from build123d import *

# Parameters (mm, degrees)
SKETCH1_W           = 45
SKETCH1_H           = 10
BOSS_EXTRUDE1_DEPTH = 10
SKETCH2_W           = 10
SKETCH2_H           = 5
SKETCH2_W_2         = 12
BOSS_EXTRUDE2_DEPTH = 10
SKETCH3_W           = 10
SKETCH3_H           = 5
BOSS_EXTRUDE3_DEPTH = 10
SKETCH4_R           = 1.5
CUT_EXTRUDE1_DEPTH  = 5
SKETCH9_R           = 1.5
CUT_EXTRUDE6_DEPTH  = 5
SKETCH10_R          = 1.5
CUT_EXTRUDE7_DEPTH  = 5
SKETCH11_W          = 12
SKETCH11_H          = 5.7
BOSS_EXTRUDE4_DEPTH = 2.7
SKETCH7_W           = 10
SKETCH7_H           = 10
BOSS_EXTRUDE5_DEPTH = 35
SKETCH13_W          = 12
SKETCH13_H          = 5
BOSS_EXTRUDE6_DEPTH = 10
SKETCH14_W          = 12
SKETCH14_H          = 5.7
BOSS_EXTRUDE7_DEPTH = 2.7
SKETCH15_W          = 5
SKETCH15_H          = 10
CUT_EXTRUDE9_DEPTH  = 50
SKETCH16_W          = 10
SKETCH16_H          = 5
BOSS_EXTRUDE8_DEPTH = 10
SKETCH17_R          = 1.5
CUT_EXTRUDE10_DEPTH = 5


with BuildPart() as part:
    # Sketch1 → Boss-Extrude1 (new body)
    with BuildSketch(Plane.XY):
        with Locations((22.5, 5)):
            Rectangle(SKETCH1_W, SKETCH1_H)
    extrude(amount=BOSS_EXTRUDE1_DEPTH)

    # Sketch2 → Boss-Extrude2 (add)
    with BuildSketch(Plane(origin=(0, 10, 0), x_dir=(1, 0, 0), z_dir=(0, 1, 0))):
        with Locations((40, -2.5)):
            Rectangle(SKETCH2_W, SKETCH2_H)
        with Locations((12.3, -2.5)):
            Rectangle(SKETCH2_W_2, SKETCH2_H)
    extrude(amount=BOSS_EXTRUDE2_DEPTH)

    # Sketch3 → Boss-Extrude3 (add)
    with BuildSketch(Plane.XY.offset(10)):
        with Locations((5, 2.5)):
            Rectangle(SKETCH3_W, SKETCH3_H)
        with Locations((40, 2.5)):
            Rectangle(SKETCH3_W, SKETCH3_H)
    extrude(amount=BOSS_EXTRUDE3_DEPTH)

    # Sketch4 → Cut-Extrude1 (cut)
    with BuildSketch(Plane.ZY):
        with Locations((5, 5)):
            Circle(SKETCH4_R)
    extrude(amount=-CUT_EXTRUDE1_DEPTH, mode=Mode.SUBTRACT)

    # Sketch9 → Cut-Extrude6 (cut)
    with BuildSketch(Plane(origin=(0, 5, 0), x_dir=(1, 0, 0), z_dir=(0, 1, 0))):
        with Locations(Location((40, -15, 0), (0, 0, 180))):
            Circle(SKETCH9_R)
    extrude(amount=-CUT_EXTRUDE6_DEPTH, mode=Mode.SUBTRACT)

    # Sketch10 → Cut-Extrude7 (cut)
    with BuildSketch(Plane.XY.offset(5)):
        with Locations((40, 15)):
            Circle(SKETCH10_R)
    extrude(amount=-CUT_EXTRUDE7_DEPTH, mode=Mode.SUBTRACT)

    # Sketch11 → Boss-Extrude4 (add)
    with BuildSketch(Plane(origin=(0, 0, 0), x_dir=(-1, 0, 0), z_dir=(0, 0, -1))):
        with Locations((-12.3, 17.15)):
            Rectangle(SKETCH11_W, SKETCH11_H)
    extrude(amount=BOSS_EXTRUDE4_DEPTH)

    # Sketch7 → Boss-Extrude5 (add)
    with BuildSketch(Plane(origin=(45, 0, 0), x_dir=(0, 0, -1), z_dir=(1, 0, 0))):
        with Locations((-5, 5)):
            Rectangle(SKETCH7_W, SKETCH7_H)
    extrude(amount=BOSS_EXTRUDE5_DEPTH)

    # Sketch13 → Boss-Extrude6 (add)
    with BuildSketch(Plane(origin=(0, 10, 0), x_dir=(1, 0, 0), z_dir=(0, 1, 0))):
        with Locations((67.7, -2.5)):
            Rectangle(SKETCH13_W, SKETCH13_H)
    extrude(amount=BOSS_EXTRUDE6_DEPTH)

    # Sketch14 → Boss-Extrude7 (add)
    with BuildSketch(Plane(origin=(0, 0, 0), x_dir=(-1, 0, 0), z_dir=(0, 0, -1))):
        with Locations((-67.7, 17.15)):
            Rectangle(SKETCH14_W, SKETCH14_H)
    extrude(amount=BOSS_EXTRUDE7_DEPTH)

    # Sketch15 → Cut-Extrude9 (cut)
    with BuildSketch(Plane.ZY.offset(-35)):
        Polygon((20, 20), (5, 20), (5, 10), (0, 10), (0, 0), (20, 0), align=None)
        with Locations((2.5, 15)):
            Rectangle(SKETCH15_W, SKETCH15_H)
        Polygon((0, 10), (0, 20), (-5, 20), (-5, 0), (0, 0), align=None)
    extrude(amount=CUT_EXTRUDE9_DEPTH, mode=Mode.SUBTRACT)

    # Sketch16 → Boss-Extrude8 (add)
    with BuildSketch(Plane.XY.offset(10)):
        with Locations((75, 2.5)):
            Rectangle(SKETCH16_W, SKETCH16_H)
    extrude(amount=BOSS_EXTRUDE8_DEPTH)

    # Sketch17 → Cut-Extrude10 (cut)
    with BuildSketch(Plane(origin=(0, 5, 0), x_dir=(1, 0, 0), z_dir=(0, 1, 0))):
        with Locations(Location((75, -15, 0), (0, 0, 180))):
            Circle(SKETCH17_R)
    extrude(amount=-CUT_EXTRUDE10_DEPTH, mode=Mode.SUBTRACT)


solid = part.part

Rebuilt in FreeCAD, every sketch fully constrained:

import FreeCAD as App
import Part
import Sketcher
from FreeCAD import Vector
Q = App.Units.Quantity

doc = App.newDocument("Part")
body = doc.addObject("PartDesign::Body", "Body")

# Sketch on XY plane
sketch1 = body.newObject("Sketcher::SketchObject", "Sketch")
sketch1.AttachmentSupport = (doc.getObject("XY_Plane"), [""])
sketch1.MapMode = "FlatFace"
sketch1.addGeometry(Part.LineSegment(Vector(0, 10, 0), Vector(0, 0, 0)), False)
sketch1.addGeometry(Part.LineSegment(Vector(0, 0, 0), Vector(45, 0, 0)), False)
sketch1.addGeometry(Part.LineSegment(Vector(45, 0, 0), Vector(45, 10, 0)), False)
sketch1.addGeometry(Part.LineSegment(Vector(45, 10, 0), Vector(0, 10, 0)), False)
sketch1.addConstraint(Sketcher.Constraint("Coincident", 0, 2, 1, 1))
sketch1.addConstraint(Sketcher.Constraint("Coincident", 1, 2, 2, 1))
sketch1.addConstraint(Sketcher.Constraint("Coincident", 2, 2, 3, 1))
sketch1.addConstraint(Sketcher.Constraint("Coincident", 3, 2, 0, 1))
sketch1.addConstraint(Sketcher.Constraint("Vertical", 0))
sketch1.addConstraint(Sketcher.Constraint("Horizontal", 1))
sketch1.addConstraint(Sketcher.Constraint("Vertical", 2))
sketch1.addConstraint(Sketcher.Constraint("Horizontal", 3))
sketch1.addConstraint(Sketcher.Constraint("Coincident", 0, 2, -1, 1))
sketch1.addConstraint(Sketcher.Constraint("DistanceX", 1, 1, 1, 2, Q("45 mm")))
sketch1.addConstraint(Sketcher.Constraint("DistanceY", 0, 2, 0, 1, Q("10 mm")))
pad1 = body.newObject("PartDesign::Pad", "Pad")
pad1.Profile = sketch1
pad1.Length = 10

# Sketch on XZ plane
sketch2 = body.newObject("Sketcher::SketchObject", "Sketch001")
sketch2.AttachmentSupport = (doc.getObject("XZ_Plane"), [""])
sketch2.MapMode = "FlatFace"
sketch2.AttachmentOffset = App.Placement(Vector(0, 0, -10), App.Rotation())
sketch2.addGeometry(Part.LineSegment(Vector(35, 0, 0), Vector(35, 5, 0)), False)
sketch2.addGeometry(Part.LineSegment(Vector(35, 5, 0), Vector(45, 5, 0)), False)
sketch2.addGeometry(Part.LineSegment(Vector(45, 5, 0), Vector(45, 0, 0)), False)
sketch2.addGeometry(Part.LineSegment(Vector(45, 0, 0), Vector(35, 0, 0)), False)
sketch2.addGeometry(Part.LineSegment(Vector(6.3, 0, 0), Vector(6.3, 5, 0)), False)
sketch2.addGeometry(Part.LineSegment(Vector(6.3, 5, 0), Vector(18.3, 5, 0)), False)
sketch2.addGeometry(Part.LineSegment(Vector(18.3, 5, 0), Vector(18.3, 0, 0)), False)
sketch2.addGeometry(Part.LineSegment(Vector(18.3, 0, 0), Vector(6.3, 0, 0)), False)
sketch2.addConstraint(Sketcher.Constraint("Coincident", 0, 2, 1, 1))
sketch2.addConstraint(Sketcher.Constraint("Coincident", 1, 2, 2, 1))
sketch2.addConstraint(Sketcher.Constraint("Coincident", 2, 2, 3, 1))
sketch2.addConstraint(Sketcher.Constraint("Coincident", 3, 2, 0, 1))
sketch2.addConstraint(Sketcher.Constraint("Coincident", 4, 2, 5, 1))
sketch2.addConstraint(Sketcher.Constraint("Coincident", 5, 2, 6, 1))
sketch2.addConstraint(Sketcher.Constraint("Coincident", 6, 2, 7, 1))
sketch2.addConstraint(Sketcher.Constraint("Coincident", 7, 2, 4, 1))
sketch2.addConstraint(Sketcher.Constraint("Vertical", 0))
sketch2.addConstraint(Sketcher.Constraint("Horizontal", 1))
sketch2.addConstraint(Sketcher.Constraint("Vertical", 2))
sketch2.addConstraint(Sketcher.Constraint("Horizontal", 3))
sketch2.addConstraint(Sketcher.Constraint("Vertical", 4))
sketch2.addConstraint(Sketcher.Constraint("Horizontal", 5))
sketch2.addConstraint(Sketcher.Constraint("Vertical", 6))
sketch2.addConstraint(Sketcher.Constraint("Horizontal", 7))
sketch2.addConstraint(Sketcher.Constraint("PointOnObject", 2, 2, -1))
sketch2.addConstraint(Sketcher.Constraint("PointOnObject", 6, 2, -1))
sketch2.addConstraint(Sketcher.Constraint("Horizontal", 1, 2, 4, 2))
sketch2.addConstraint(Sketcher.Constraint("DistanceX", 1, 1, 1, 2, Q("10 mm")))
sketch2.addConstraint(Sketcher.Constraint("DistanceX", 5, 1, 5, 2, Q("12 mm")))
sketch2.addConstraint(Sketcher.Constraint("DistanceY", 0, 1, 0, 2, Q("5 mm")))
sketch2.addConstraint(Sketcher.Constraint("DistanceX", -1, 1, 0, 2, Q("35 mm")))
sketch2.addConstraint(Sketcher.Constraint("DistanceX", -1, 1, 4, 2, Q("6.3 mm")))
pad2 = body.newObject("PartDesign::Pad", "Pad001")
pad2.Profile = sketch2
pad2.Length = 10
pad2.Reversed = True

# Sketch on XY plane
sketch3 = body.newObject("Sketcher::SketchObject", "Sketch002")
sketch3.AttachmentSupport = (doc.getObject("XY_Plane"), [""])
sketch3.MapMode = "FlatFace"
sketch3.AttachmentOffset = App.Placement(Vector(0, 0, 10), App.Rotation())
sketch3.addGeometry(Part.LineSegment(Vector(0, 5, 0), Vector(0, 0, 0)), False)
sketch3.addGeometry(Part.LineSegment(Vector(0, 0, 0), Vector(10, 0, 0)), False)
sketch3.addGeometry(Part.LineSegment(Vector(10, 0, 0), Vector(10, 5, 0)), False)
sketch3.addGeometry(Part.LineSegment(Vector(10, 5, 0), Vector(0, 5, 0)), False)
sketch3.addGeometry(Part.LineSegment(Vector(35, 5, 0), Vector(35, 0, 0)), False)
sketch3.addGeometry(Part.LineSegment(Vector(35, 0, 0), Vector(45, 0, 0)), False)
sketch3.addGeometry(Part.LineSegment(Vector(45, 0, 0), Vector(45, 5, 0)), False)
sketch3.addGeometry(Part.LineSegment(Vector(45, 5, 0), Vector(35, 5, 0)), False)
sketch3.addConstraint(Sketcher.Constraint("Coincident", 0, 2, 1, 1))
sketch3.addConstraint(Sketcher.Constraint("Coincident", 1, 2, 2, 1))
sketch3.addConstraint(Sketcher.Constraint("Coincident", 2, 2, 3, 1))
sketch3.addConstraint(Sketcher.Constraint("Coincident", 3, 2, 0, 1))
sketch3.addConstraint(Sketcher.Constraint("Coincident", 4, 2, 5, 1))
sketch3.addConstraint(Sketcher.Constraint("Coincident", 5, 2, 6, 1))
sketch3.addConstraint(Sketcher.Constraint("Coincident", 6, 2, 7, 1))
sketch3.addConstraint(Sketcher.Constraint("Coincident", 7, 2, 4, 1))
sketch3.addConstraint(Sketcher.Constraint("Vertical", 0))
sketch3.addConstraint(Sketcher.Constraint("Horizontal", 1))
sketch3.addConstraint(Sketcher.Constraint("Vertical", 2))
sketch3.addConstraint(Sketcher.Constraint("Horizontal", 3))
sketch3.addConstraint(Sketcher.Constraint("Vertical", 4))
sketch3.addConstraint(Sketcher.Constraint("Horizontal", 5))
sketch3.addConstraint(Sketcher.Constraint("Vertical", 6))
sketch3.addConstraint(Sketcher.Constraint("Horizontal", 7))
sketch3.addConstraint(Sketcher.Constraint("Coincident", 0, 2, -1, 1))
sketch3.addConstraint(Sketcher.Constraint("PointOnObject", 4, 2, -1))
sketch3.addConstraint(Sketcher.Constraint("Horizontal", 3, 2, 6, 2))
sketch3.addConstraint(Sketcher.Constraint("Equal", 3, 5))
sketch3.addConstraint(Sketcher.Constraint("DistanceX", 1, 1, 1, 2, Q("10 mm")))
sketch3.addConstraint(Sketcher.Constraint("DistanceY", 0, 2, 0, 1, Q("5 mm")))
sketch3.addConstraint(Sketcher.Constraint("DistanceX", -1, 1, 4, 2, Q("35 mm")))
pad3 = body.newObject("PartDesign::Pad", "Pad002")
pad3.Profile = sketch3
pad3.Length = 10

# Sketch on YZ plane
sketch4 = body.newObject("Sketcher::SketchObject", "Sketch003")
sketch4.AttachmentSupport = (doc.getObject("YZ_Plane"), [""])
sketch4.MapMode = "FlatFace"
sketch4.addGeometry(Part.Circle(Vector(5, 5, 0), Vector(0, 0, 1), 1.5), False)
sketch4.addConstraint(Sketcher.Constraint("Diameter", 0, Q("3 mm")))
sketch4.addConstraint(Sketcher.Constraint("DistanceX", -1, 1, 0, 3, Q("5 mm")))
sketch4.addConstraint(Sketcher.Constraint("DistanceY", -1, 1, 0, 3, Q("5 mm")))
pocket1 = body.newObject("PartDesign::Pocket", "Pocket")
pocket1.Profile = sketch4
pocket1.Length = 5
pocket1.Reversed = True

# Sketch on XZ plane
sketch5 = body.newObject("Sketcher::SketchObject", "Sketch004")
sketch5.AttachmentSupport = (doc.getObject("XZ_Plane"), [""])
sketch5.MapMode = "FlatFace"
sketch5.AttachmentOffset = App.Placement(Vector(0, 0, -5), App.Rotation())
sketch5.addGeometry(Part.Circle(Vector(40, 15, 0), Vector(0, 0, 1), 1.5), False)
sketch5.addConstraint(Sketcher.Constraint("Diameter", 0, Q("3 mm")))
sketch5.addConstraint(Sketcher.Constraint("DistanceX", -1, 1, 0, 3, Q("40 mm")))
sketch5.addConstraint(Sketcher.Constraint("DistanceY", -1, 1, 0, 3, Q("15 mm")))
pocket2 = body.newObject("PartDesign::Pocket", "Pocket001")
pocket2.Profile = sketch5
pocket2.Length = 5
pocket2.Reversed = True

# Sketch on XY plane
sketch6 = body.newObject("Sketcher::SketchObject", "Sketch005")
sketch6.AttachmentSupport = (doc.getObject("XY_Plane"), [""])
sketch6.MapMode = "FlatFace"
sketch6.AttachmentOffset = App.Placement(Vector(0, 0, 5), App.Rotation())
sketch6.addGeometry(Part.Circle(Vector(40, 15, 0), Vector(0, 0, 1), 1.5), False)
sketch6.addConstraint(Sketcher.Constraint("Diameter", 0, Q("3 mm")))
sketch6.addConstraint(Sketcher.Constraint("DistanceX", -1, 1, 0, 3, Q("40 mm")))
sketch6.addConstraint(Sketcher.Constraint("DistanceY", -1, 1, 0, 3, Q("15 mm")))
pocket3 = body.newObject("PartDesign::Pocket", "Pocket002")
pocket3.Profile = sketch6
pocket3.Length = 5

# Sketch on XY plane
sketch7 = body.newObject("Sketcher::SketchObject", "Sketch006")
sketch7.AttachmentSupport = (doc.getObject("XY_Plane"), [""])
sketch7.MapMode = "FlatFace"
sketch7.addGeometry(Part.LineSegment(Vector(18.3, 20, 0), Vector(18.3, 14.3, 0)), False)
sketch7.addGeometry(Part.LineSegment(Vector(18.3, 14.3, 0), Vector(6.3, 14.3, 0)), False)
sketch7.addGeometry(Part.LineSegment(Vector(6.3, 14.3, 0), Vector(6.3, 20, 0)), False)
sketch7.addGeometry(Part.LineSegment(Vector(6.3, 20, 0), Vector(18.3, 20, 0)), False)
sketch7.addConstraint(Sketcher.Constraint("Coincident", 0, 2, 1, 1))
sketch7.addConstraint(Sketcher.Constraint("Coincident", 1, 2, 2, 1))
sketch7.addConstraint(Sketcher.Constraint("Coincident", 2, 2, 3, 1))
sketch7.addConstraint(Sketcher.Constraint("Coincident", 3, 2, 0, 1))
sketch7.addConstraint(Sketcher.Constraint("Vertical", 0))
sketch7.addConstraint(Sketcher.Constraint("Horizontal", 1))
sketch7.addConstraint(Sketcher.Constraint("Vertical", 2))
sketch7.addConstraint(Sketcher.Constraint("Horizontal", 3))
sketch7.addConstraint(Sketcher.Constraint("DistanceX", 1, 2, 1, 1, Q("12 mm")))
sketch7.addConstraint(Sketcher.Constraint("DistanceY", 0, 2, 0, 1, Q("5.7 mm")))
sketch7.addConstraint(Sketcher.Constraint("DistanceY", -1, 1, 2, 2, Q("20 mm")))
sketch7.addConstraint(Sketcher.Constraint("DistanceX", -1, 1, 0, 2, Q("18.3 mm")))
pad4 = body.newObject("PartDesign::Pad", "Pad003")
pad4.Profile = sketch7
pad4.Length = 2.7
pad4.Reversed = True

# Sketch on YZ plane
sketch8 = body.newObject("Sketcher::SketchObject", "Sketch007")
sketch8.AttachmentSupport = (doc.getObject("YZ_Plane"), [""])
sketch8.MapMode = "FlatFace"
sketch8.AttachmentOffset = App.Placement(Vector(0, 0, 45), App.Rotation())
sketch8.addGeometry(Part.LineSegment(Vector(10, 10, 0), Vector(0, 10, 0)), False)
sketch8.addGeometry(Part.LineSegment(Vector(0, 10, 0), Vector(0, 0, 0)), False)
sketch8.addGeometry(Part.LineSegment(Vector(0, 0, 0), Vector(10, 0, 0)), False)
sketch8.addGeometry(Part.LineSegment(Vector(10, 0, 0), Vector(10, 10, 0)), False)
sketch8.addConstraint(Sketcher.Constraint("Coincident", 0, 2, 1, 1))
sketch8.addConstraint(Sketcher.Constraint("Coincident", 1, 2, 2, 1))
sketch8.addConstraint(Sketcher.Constraint("Coincident", 2, 2, 3, 1))
sketch8.addConstraint(Sketcher.Constraint("Coincident", 3, 2, 0, 1))
sketch8.addConstraint(Sketcher.Constraint("Horizontal", 0))
sketch8.addConstraint(Sketcher.Constraint("Vertical", 1))
sketch8.addConstraint(Sketcher.Constraint("Horizontal", 2))
sketch8.addConstraint(Sketcher.Constraint("Vertical", 3))
sketch8.addConstraint(Sketcher.Constraint("Coincident", 1, 2, -1, 1))
sketch8.addConstraint(Sketcher.Constraint("Equal", 2, 1))
sketch8.addConstraint(Sketcher.Constraint("DistanceX", 0, 2, 0, 1, Q("10 mm")))
pad5 = body.newObject("PartDesign::Pad", "Pad004")
pad5.Profile = sketch8
pad5.Length = 35

# Sketch on XZ plane
sketch9 = body.newObject("Sketcher::SketchObject", "Sketch008")
sketch9.AttachmentSupport = (doc.getObject("XZ_Plane"), [""])
sketch9.MapMode = "FlatFace"
sketch9.AttachmentOffset = App.Placement(Vector(0, 0, -10), App.Rotation())
sketch9.addGeometry(Part.LineSegment(Vector(61.7, 0, 0), Vector(61.7, 5, 0)), False)
sketch9.addGeometry(Part.LineSegment(Vector(61.7, 5, 0), Vector(73.7, 5, 0)), False)
sketch9.addGeometry(Part.LineSegment(Vector(73.7, 5, 0), Vector(73.7, 0, 0)), False)
sketch9.addGeometry(Part.LineSegment(Vector(73.7, 0, 0), Vector(61.7, 0, 0)), False)
sketch9.addConstraint(Sketcher.Constraint("Coincident", 0, 2, 1, 1))
sketch9.addConstraint(Sketcher.Constraint("Coincident", 1, 2, 2, 1))
sketch9.addConstraint(Sketcher.Constraint("Coincident", 2, 2, 3, 1))
sketch9.addConstraint(Sketcher.Constraint("Coincident", 3, 2, 0, 1))
sketch9.addConstraint(Sketcher.Constraint("Vertical", 0))
sketch9.addConstraint(Sketcher.Constraint("Horizontal", 1))
sketch9.addConstraint(Sketcher.Constraint("Vertical", 2))
sketch9.addConstraint(Sketcher.Constraint("Horizontal", 3))
sketch9.addConstraint(Sketcher.Constraint("PointOnObject", 2, 2, -1))
sketch9.addConstraint(Sketcher.Constraint("DistanceX", 1, 1, 1, 2, Q("12 mm")))
sketch9.addConstraint(Sketcher.Constraint("DistanceY", 0, 1, 0, 2, Q("5 mm")))
sketch9.addConstraint(Sketcher.Constraint("DistanceX", -1, 1, 0, 2, Q("61.7 mm")))
pad6 = body.newObject("PartDesign::Pad", "Pad005")
pad6.Profile = sketch9
pad6.Length = 10
pad6.Reversed = True

# Sketch on XY plane
sketch10 = body.newObject("Sketcher::SketchObject", "Sketch009")
sketch10.AttachmentSupport = (doc.getObject("XY_Plane"), [""])
sketch10.MapMode = "FlatFace"
sketch10.addGeometry(Part.LineSegment(Vector(73.7, 20, 0), Vector(73.7, 14.3, 0)), False)
sketch10.addGeometry(Part.LineSegment(Vector(73.7, 14.3, 0), Vector(61.7, 14.3, 0)), False)
sketch10.addGeometry(Part.LineSegment(Vector(61.7, 14.3, 0), Vector(61.7, 20, 0)), False)
sketch10.addGeometry(Part.LineSegment(Vector(61.7, 20, 0), Vector(73.7, 20, 0)), False)
sketch10.addConstraint(Sketcher.Constraint("Coincident", 0, 2, 1, 1))
sketch10.addConstraint(Sketcher.Constraint("Coincident", 1, 2, 2, 1))
sketch10.addConstraint(Sketcher.Constraint("Coincident", 2, 2, 3, 1))
sketch10.addConstraint(Sketcher.Constraint("Coincident", 3, 2, 0, 1))
sketch10.addConstraint(Sketcher.Constraint("Vertical", 0))
sketch10.addConstraint(Sketcher.Constraint("Horizontal", 1))
sketch10.addConstraint(Sketcher.Constraint("Vertical", 2))
sketch10.addConstraint(Sketcher.Constraint("Horizontal", 3))
sketch10.addConstraint(Sketcher.Constraint("DistanceX", 1, 2, 1, 1, Q("12 mm")))
sketch10.addConstraint(Sketcher.Constraint("DistanceY", 0, 2, 0, 1, Q("5.7 mm")))
sketch10.addConstraint(Sketcher.Constraint("DistanceY", -1, 1, 2, 2, Q("20 mm")))
sketch10.addConstraint(Sketcher.Constraint("DistanceX", -1, 1, 0, 2, Q("73.7 mm")))
pad7 = body.newObject("PartDesign::Pad", "Pad006")
pad7.Profile = sketch10
pad7.Length = 2.7
pad7.Reversed = True

# Sketch on YZ plane
sketch11 = body.newObject("Sketcher::SketchObject", "Sketch010")
sketch11.AttachmentSupport = (doc.getObject("YZ_Plane"), [""])
sketch11.MapMode = "FlatFace"
sketch11.AttachmentOffset = App.Placement(Vector(0, 0, 35), App.Rotation())
sketch11.addGeometry(Part.LineSegment(Vector(20, 20, 0), Vector(20, -5, 0)), False)
sketch11.addGeometry(Part.LineSegment(Vector(20, -5, 0), Vector(0, -5, 0)), False)
sketch11.addGeometry(Part.LineSegment(Vector(0, -5, 0), Vector(0, 20, 0)), False)
sketch11.addGeometry(Part.LineSegment(Vector(0, 20, 0), Vector(20, 20, 0)), False)
sketch11.addConstraint(Sketcher.Constraint("Coincident", 0, 2, 1, 1))
sketch11.addConstraint(Sketcher.Constraint("Coincident", 1, 2, 2, 1))
sketch11.addConstraint(Sketcher.Constraint("Coincident", 2, 2, 3, 1))
sketch11.addConstraint(Sketcher.Constraint("Coincident", 3, 2, 0, 1))
sketch11.addConstraint(Sketcher.Constraint("Vertical", 0))
sketch11.addConstraint(Sketcher.Constraint("Horizontal", 1))
sketch11.addConstraint(Sketcher.Constraint("Vertical", 2))
sketch11.addConstraint(Sketcher.Constraint("Horizontal", 3))
sketch11.addConstraint(Sketcher.Constraint("PointOnObject", 1, 2, -2))
sketch11.addConstraint(Sketcher.Constraint("DistanceX", 1, 2, 1, 1, Q("20 mm")))
sketch11.addConstraint(Sketcher.Constraint("DistanceY", 0, 2, 0, 1, Q("25 mm")))
sketch11.addConstraint(Sketcher.Constraint("DistanceY", 0, 2, -1, 1, Q("5 mm")))
pocket4 = body.newObject("PartDesign::Pocket", "Pocket003")
pocket4.Profile = sketch11
pocket4.Length = 50

# Sketch on XY plane
sketch12 = body.newObject("Sketcher::SketchObject", "Sketch011")
sketch12.AttachmentSupport = (doc.getObject("XY_Plane"), [""])
sketch12.MapMode = "FlatFace"
sketch12.AttachmentOffset = App.Placement(Vector(0, 0, 10), App.Rotation())
sketch12.addGeometry(Part.LineSegment(Vector(70, 5, 0), Vector(70, 0, 0)), False)
sketch12.addGeometry(Part.LineSegment(Vector(70, 0, 0), Vector(80, 0, 0)), False)
sketch12.addGeometry(Part.LineSegment(Vector(80, 0, 0), Vector(80, 5, 0)), False)
sketch12.addGeometry(Part.LineSegment(Vector(80, 5, 0), Vector(70, 5, 0)), False)
sketch12.addConstraint(Sketcher.Constraint("Coincident", 0, 2, 1, 1))
sketch12.addConstraint(Sketcher.Constraint("Coincident", 1, 2, 2, 1))
sketch12.addConstraint(Sketcher.Constraint("Coincident", 2, 2, 3, 1))
sketch12.addConstraint(Sketcher.Constraint("Coincident", 3, 2, 0, 1))
sketch12.addConstraint(Sketcher.Constraint("Vertical", 0))
sketch12.addConstraint(Sketcher.Constraint("Horizontal", 1))
sketch12.addConstraint(Sketcher.Constraint("Vertical", 2))
sketch12.addConstraint(Sketcher.Constraint("Horizontal", 3))
sketch12.addConstraint(Sketcher.Constraint("PointOnObject", 0, 2, -1))
sketch12.addConstraint(Sketcher.Constraint("DistanceX", 1, 1, 1, 2, Q("10 mm")))
sketch12.addConstraint(Sketcher.Constraint("DistanceY", 0, 2, 0, 1, Q("5 mm")))
sketch12.addConstraint(Sketcher.Constraint("DistanceX", -1, 1, 0, 2, Q("70 mm")))
pad8 = body.newObject("PartDesign::Pad", "Pad007")
pad8.Profile = sketch12
pad8.Length = 10

# Sketch on XZ plane
sketch13 = body.newObject("Sketcher::SketchObject", "Sketch012")
sketch13.AttachmentSupport = (doc.getObject("XZ_Plane"), [""])
sketch13.MapMode = "FlatFace"
sketch13.AttachmentOffset = App.Placement(Vector(0, 0, -5), App.Rotation())
sketch13.addGeometry(Part.Circle(Vector(75, 15, 0), Vector(0, 0, 1), 1.5), False)
sketch13.addConstraint(Sketcher.Constraint("Diameter", 0, Q("3 mm")))
sketch13.addConstraint(Sketcher.Constraint("DistanceX", -1, 1, 0, 3, Q("75 mm")))
sketch13.addConstraint(Sketcher.Constraint("DistanceY", -1, 1, 0, 3, Q("15 mm")))
pocket5 = body.newObject("PartDesign::Pocket", "Pocket004")
pocket5.Profile = sketch13
pocket5.Length = 5
pocket5.Reversed = True

doc.recompute()
